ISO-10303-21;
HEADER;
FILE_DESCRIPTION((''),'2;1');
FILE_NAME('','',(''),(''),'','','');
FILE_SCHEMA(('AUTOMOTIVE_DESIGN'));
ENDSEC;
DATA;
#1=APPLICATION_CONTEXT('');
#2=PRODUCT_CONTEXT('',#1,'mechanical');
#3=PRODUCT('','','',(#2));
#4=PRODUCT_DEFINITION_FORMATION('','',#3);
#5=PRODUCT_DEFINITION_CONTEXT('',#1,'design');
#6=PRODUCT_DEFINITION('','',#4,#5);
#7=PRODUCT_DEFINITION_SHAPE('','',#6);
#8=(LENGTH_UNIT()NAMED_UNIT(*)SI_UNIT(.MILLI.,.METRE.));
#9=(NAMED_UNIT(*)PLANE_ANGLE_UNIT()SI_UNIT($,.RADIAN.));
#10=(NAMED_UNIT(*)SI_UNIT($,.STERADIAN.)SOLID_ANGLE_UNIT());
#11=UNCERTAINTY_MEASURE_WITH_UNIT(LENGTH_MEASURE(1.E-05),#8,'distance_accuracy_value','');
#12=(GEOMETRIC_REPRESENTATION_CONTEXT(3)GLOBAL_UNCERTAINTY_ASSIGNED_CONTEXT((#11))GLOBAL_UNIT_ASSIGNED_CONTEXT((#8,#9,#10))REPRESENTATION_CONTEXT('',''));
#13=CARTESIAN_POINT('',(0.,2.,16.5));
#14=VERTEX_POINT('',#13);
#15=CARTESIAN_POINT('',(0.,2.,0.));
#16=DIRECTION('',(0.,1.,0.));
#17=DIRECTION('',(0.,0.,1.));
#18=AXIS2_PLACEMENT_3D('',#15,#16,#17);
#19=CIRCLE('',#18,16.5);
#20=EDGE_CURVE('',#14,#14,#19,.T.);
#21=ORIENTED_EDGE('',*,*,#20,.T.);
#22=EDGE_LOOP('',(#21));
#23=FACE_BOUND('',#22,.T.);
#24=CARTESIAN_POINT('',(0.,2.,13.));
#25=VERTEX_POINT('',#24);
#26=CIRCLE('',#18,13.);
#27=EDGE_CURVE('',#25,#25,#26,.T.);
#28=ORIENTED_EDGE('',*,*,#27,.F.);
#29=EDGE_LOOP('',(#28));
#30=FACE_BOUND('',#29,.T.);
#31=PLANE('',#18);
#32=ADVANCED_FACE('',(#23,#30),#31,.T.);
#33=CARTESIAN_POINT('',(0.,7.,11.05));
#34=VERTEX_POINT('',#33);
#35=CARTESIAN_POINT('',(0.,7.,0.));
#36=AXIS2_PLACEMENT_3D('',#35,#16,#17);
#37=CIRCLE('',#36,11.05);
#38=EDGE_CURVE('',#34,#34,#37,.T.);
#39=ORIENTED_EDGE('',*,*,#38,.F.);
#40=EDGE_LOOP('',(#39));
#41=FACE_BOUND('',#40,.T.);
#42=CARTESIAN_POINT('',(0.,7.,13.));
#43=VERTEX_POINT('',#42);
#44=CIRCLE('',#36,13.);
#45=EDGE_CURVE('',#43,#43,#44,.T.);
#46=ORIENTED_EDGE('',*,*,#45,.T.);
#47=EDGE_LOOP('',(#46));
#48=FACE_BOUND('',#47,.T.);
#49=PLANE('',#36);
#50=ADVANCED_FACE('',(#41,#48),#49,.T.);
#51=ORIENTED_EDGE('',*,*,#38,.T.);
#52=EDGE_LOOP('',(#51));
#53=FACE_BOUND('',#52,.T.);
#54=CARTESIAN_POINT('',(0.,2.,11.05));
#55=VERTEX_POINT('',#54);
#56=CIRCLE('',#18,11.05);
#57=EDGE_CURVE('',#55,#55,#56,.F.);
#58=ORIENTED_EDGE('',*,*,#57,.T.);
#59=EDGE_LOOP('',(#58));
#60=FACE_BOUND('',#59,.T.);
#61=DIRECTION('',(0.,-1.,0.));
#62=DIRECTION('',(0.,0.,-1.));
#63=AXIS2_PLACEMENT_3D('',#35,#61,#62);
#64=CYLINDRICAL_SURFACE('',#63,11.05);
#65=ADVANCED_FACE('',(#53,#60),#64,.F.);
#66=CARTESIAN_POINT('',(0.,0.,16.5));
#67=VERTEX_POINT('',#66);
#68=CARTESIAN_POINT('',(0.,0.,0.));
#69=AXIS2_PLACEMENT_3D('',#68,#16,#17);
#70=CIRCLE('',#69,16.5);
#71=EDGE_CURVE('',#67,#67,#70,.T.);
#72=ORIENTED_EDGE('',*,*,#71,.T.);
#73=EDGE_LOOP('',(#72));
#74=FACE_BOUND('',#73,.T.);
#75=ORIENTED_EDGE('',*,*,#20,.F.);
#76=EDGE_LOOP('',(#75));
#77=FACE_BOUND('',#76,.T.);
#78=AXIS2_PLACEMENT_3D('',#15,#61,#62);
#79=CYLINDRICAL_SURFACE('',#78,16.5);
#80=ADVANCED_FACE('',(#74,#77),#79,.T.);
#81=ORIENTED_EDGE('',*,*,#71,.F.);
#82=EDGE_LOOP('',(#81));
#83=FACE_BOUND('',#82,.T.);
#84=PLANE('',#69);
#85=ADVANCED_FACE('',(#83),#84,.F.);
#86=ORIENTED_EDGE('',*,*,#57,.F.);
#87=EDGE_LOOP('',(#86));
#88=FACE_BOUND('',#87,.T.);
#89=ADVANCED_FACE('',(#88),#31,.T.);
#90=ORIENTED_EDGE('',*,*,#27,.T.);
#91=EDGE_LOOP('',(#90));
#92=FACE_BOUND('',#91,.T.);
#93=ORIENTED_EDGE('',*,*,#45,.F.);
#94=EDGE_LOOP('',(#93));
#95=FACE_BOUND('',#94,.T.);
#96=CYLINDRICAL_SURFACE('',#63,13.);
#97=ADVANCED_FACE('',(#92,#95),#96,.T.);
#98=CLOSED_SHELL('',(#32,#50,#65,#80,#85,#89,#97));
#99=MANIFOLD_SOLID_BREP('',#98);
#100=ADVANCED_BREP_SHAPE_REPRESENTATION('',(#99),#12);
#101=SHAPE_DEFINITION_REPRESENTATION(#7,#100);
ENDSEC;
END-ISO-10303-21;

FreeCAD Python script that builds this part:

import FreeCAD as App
import Part
import Sketcher
Q = App.Units.Quantity

doc = App.newDocument("Part")
body = doc.addObject("PartDesign::Body", "Body")

sketch1 = body.newObject("Sketcher::SketchObject", "Sketch")
sketch1.AttachmentSupport = (doc.getObject("XZ_Plane"), [""])
sketch1.MapMode = "FlatFace"
sketch1.addGeometry(Part.Circle(App.Vector(0, 0, 0), App.Vector(0, 0, 1), 16), False)
sketch1.addConstraint([
    Sketcher.Constraint("Coincident", 0, 3, -1, 1),
    Sketcher.Constraint("Diameter", 0, Q("33 mm")),
])
pad1 = body.newObject("PartDesign::Pad", "Pad")
pad1.Profile = sketch1
pad1.Length = 2
pad1.Reversed = True

sketch2 = body.newObject("Sketcher::SketchObject", "Sketch001")
sketch2.AttachmentSupport = (doc.getObject("XZ_Plane"), [""])
sketch2.MapMode = "FlatFace"
sketch2.AttachmentOffset = App.Placement(App.Vector(0, 0, -2), App.Rotation())
sketch2.addGeometry([
    Part.Circle(App.Vector(0, 0, 0), App.Vector(0, 0, 1), 13),
    Part.Circle(App.Vector(0, 0, 0), App.Vector(0, 0, 1), 11),
], False)
sketch2.addConstraint([
    Sketcher.Constraint("Coincident", 0, 3, -1, 1),
    Sketcher.Constraint("Coincident", 1, 3, -1, 1),
    Sketcher.Constraint("Diameter", 0, Q("26 mm")),
    Sketcher.Constraint("Diameter", 1, Q("22.1 mm")),
])
pad2 = body.newObject("PartDesign::Pad", "Pad001")
pad2.Profile = sketch2
pad2.Length = 5
pad2.Reversed = True

doc.recompute()
